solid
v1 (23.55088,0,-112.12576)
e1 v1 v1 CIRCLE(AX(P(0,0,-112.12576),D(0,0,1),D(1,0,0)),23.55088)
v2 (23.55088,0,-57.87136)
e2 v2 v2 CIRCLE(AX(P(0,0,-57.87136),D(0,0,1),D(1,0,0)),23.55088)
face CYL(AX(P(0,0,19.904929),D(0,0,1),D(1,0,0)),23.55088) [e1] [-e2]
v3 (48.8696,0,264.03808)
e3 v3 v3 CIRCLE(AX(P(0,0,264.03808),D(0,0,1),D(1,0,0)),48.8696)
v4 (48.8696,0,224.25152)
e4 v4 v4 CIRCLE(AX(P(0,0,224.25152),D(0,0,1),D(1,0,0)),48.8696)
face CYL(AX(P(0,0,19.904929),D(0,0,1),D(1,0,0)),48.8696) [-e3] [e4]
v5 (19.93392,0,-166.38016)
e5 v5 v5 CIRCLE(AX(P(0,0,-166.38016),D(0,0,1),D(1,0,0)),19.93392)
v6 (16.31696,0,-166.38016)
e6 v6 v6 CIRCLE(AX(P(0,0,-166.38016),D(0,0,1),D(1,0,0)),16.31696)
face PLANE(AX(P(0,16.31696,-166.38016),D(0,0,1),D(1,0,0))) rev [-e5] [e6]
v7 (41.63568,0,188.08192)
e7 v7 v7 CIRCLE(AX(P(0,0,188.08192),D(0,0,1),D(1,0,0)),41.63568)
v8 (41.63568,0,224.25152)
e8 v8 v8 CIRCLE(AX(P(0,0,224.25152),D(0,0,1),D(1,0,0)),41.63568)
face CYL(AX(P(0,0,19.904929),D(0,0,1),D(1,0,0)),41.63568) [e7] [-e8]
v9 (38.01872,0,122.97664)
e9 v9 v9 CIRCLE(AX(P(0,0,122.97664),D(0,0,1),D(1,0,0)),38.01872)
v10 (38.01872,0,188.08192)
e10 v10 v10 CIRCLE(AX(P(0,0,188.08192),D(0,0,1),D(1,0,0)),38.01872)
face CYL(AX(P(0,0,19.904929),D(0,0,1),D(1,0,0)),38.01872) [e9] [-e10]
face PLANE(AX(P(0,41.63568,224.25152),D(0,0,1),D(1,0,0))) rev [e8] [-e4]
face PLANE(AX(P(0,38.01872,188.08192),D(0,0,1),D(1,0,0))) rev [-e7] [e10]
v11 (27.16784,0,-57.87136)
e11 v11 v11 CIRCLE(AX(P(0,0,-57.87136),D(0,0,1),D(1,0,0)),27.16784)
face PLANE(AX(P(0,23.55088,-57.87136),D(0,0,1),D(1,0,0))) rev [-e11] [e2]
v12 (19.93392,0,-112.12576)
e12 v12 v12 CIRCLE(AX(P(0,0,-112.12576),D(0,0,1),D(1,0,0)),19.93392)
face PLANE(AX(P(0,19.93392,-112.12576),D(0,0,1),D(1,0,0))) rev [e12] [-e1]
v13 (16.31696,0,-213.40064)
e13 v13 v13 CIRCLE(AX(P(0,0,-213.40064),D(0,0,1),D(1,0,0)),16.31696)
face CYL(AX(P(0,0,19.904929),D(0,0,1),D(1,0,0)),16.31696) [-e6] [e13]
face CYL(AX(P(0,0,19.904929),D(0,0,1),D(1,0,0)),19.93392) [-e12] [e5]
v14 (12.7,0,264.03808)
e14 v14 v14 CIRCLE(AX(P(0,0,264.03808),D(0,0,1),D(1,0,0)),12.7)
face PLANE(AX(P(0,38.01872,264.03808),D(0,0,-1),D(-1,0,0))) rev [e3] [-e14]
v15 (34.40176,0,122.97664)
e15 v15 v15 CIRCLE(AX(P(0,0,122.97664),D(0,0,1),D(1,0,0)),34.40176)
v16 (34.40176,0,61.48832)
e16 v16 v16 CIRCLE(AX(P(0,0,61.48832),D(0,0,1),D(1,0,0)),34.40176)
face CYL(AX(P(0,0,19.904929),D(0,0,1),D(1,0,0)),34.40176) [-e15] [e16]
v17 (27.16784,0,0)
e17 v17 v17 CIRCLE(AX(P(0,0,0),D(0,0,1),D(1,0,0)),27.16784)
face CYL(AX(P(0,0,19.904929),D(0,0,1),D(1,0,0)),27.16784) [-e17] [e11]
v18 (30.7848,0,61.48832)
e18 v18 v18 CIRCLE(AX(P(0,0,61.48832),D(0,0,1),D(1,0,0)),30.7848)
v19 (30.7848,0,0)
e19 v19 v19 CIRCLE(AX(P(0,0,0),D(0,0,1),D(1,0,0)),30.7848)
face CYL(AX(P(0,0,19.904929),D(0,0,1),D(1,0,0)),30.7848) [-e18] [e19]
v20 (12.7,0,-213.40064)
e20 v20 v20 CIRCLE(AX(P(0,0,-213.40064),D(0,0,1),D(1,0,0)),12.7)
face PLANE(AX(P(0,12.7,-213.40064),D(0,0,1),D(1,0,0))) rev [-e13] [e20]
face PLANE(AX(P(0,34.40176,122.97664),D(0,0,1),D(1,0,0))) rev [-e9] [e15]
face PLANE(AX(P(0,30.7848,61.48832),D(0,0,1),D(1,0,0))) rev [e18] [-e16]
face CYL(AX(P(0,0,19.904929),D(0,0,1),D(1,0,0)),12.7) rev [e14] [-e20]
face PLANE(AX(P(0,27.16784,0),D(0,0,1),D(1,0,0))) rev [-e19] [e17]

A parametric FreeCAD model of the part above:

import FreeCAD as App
import Part
import Sketcher

V = App.Vector
Q = App.Units.Quantity


def add_polygon(sketch, points):
    """Adds a closed chain of lines whose ends are joined by coincident constraints."""
    first, n = sketch.GeometryCount, len(points)
    for a, b in zip(points, points[1:] + points[:1]):
        sketch.addGeometry(Part.LineSegment(App.Vector(*a, 0), App.Vector(*b, 0)), False)
    for i in range(n):
        sketch.addConstraint(Sketcher.Constraint("Coincident", first + i, 2, first + (i + 1) % n, 1))

doc = App.newDocument("Part")
params = doc.addObject("Spreadsheet::Sheet", "Params")
for row, (alias, value) in enumerate([
    ("sketch1_width", "1.424 in"),
    ("sketch1_height", "2.136 in"),
    ("revolution_angle", "360 deg"),
], start=1):
    params.set(f"A{row}", alias)
    params.set(f"B{row}", "=" + value)
    params.setAlias(f"B{row}", alias)

body = doc.addObject("PartDesign::Body", "Body")

sketch1 = doc.addObject("Sketcher::SketchObject", "Sketch")
body.addObject(sketch1)
sketch1.AttachmentSupport = (doc.YZ_Plane, [""])
sketch1.MapMode = "FlatFace"
add_polygon(sketch1, [(12.7, 264), (12.7, -213.4), (16.3, -213.4), (16.3, -166.4), (19.9, -166.4), (19.9, -112.1), (23.6, -112.1), (23.6, -57.9), (27.2, -57.9), (27.2, 0), (30.8, 0), (30.8, 61.5), (34.4, 61.5), (34.4, 123), (38, 123), (38, 188.1), (41.6, 188.1), (41.6, 224.3), (48.9, 224.3), (48.9, 264)])
sketch1.addConstraint(Sketcher.Constraint("Vertical", 0))
sketch1.addConstraint(Sketcher.Constraint("Horizontal", 1))
sketch1.addConstraint(Sketcher.Constraint("Vertical", 2))
sketch1.addConstraint(Sketcher.Constraint("Horizontal", 3))
sketch1.addConstraint(Sketcher.Constraint("Vertical", 4))
sketch1.addConstraint(Sketcher.Constraint("Horizontal", 5))
sketch1.addConstraint(Sketcher.Constraint("Vertical", 6))
sketch1.addConstraint(Sketcher.Constraint("Horizontal", 7))
sketch1.addConstraint(Sketcher.Constraint("Vertical", 8))
sketch1.addConstraint(Sketcher.Constraint("Horizontal", 9))
sketch1.addConstraint(Sketcher.Constraint("Vertical", 10))
sketch1.addConstraint(Sketcher.Constraint("Horizontal", 11))
sketch1.addConstraint(Sketcher.Constraint("Vertical", 12))
sketch1.addConstraint(Sketcher.Constraint("Horizontal", 13))
sketch1.addConstraint(Sketcher.Constraint("Vertical", 14))
sketch1.addConstraint(Sketcher.Constraint("Horizontal", 15))
sketch1.addConstraint(Sketcher.Constraint("Vertical", 16))
sketch1.addConstraint(Sketcher.Constraint("Horizontal", 17))
sketch1.addConstraint(Sketcher.Constraint("Vertical", 18))
sketch1.addConstraint(Sketcher.Constraint("Horizontal", 19))
sketch1.addConstraint(Sketcher.Constraint("PointOnObject", 8, 2, -1))
sketch1.addConstraint(Sketcher.Constraint("Equal", 1, 3))
sketch1.addConstraint(Sketcher.Constraint("Equal", 3, 5))
sketch1.addConstraint(Sketcher.Constraint("Equal", 5, 7))
sketch1.addConstraint(Sketcher.Constraint("Equal", 7, 9))
sketch1.addConstraint(Sketcher.Constraint("Equal", 9, 11))
sketch1.addConstraint(Sketcher.Constraint("Equal", 11, 13))
sketch1.addConstraint(Sketcher.Constraint("Equal", 13, 15))
sketch1.addConstraint(Sketcher.Constraint("Equal", 4, 6))
sketch1.addConstraint(Sketcher.Constraint("Equal", 10, 12))
sketch1.addConstraint(Sketcher.Constraint("Equal", 19, 16))
sketch1.addConstraint(Sketcher.Constraint("DistanceX", -1, 1, 0, 2, Q("0.5 in")))
sketch1.addConstraint(Sketcher.Constraint("DistanceX", 19, 2, 19, 1, Q("1.424 in")))
sketch1.addConstraint(Sketcher.Constraint("DistanceY", 4, 1, 4, 2, Q("2.136 in")))
sketch1.addConstraint(Sketcher.Constraint("DistanceY", 7, 2, 12, 2, Q("7.12 in")))
sketch1.addConstraint(Sketcher.Constraint("DistanceX", 1, 1, 1, 2, Q("0.1424 in")))
sketch1.addConstraint(Sketcher.Constraint("DistanceY", 0, 2, 0, 1, Q("18.7968 in")))
sketch1.addConstraint(Sketcher.Constraint("DistanceY", 2, 1, 2, 2, Q("1.8512 in")))
sketch1.addConstraint(Sketcher.Constraint("DistanceY", 8, 1, 8, 2, Q("2.2784 in")))
sketch1.addConstraint(Sketcher.Constraint("DistanceY", 14, 1, 14, 2, Q("2.5632 in")))
sketch1.setExpression("Constraints[52]", "Params.sketch1_width")
sketch1.setExpression("Constraints[53]", "Params.sketch1_height")
revolution = doc.addObject("PartDesign::Revolution", "Revolution")
body.addObject(revolution)
revolution.Profile = sketch1
revolution.ReferenceAxis = (sketch1, ["V_Axis"])
revolution.setExpression("Angle", "Params.revolution_angle")

doc.recompute()
